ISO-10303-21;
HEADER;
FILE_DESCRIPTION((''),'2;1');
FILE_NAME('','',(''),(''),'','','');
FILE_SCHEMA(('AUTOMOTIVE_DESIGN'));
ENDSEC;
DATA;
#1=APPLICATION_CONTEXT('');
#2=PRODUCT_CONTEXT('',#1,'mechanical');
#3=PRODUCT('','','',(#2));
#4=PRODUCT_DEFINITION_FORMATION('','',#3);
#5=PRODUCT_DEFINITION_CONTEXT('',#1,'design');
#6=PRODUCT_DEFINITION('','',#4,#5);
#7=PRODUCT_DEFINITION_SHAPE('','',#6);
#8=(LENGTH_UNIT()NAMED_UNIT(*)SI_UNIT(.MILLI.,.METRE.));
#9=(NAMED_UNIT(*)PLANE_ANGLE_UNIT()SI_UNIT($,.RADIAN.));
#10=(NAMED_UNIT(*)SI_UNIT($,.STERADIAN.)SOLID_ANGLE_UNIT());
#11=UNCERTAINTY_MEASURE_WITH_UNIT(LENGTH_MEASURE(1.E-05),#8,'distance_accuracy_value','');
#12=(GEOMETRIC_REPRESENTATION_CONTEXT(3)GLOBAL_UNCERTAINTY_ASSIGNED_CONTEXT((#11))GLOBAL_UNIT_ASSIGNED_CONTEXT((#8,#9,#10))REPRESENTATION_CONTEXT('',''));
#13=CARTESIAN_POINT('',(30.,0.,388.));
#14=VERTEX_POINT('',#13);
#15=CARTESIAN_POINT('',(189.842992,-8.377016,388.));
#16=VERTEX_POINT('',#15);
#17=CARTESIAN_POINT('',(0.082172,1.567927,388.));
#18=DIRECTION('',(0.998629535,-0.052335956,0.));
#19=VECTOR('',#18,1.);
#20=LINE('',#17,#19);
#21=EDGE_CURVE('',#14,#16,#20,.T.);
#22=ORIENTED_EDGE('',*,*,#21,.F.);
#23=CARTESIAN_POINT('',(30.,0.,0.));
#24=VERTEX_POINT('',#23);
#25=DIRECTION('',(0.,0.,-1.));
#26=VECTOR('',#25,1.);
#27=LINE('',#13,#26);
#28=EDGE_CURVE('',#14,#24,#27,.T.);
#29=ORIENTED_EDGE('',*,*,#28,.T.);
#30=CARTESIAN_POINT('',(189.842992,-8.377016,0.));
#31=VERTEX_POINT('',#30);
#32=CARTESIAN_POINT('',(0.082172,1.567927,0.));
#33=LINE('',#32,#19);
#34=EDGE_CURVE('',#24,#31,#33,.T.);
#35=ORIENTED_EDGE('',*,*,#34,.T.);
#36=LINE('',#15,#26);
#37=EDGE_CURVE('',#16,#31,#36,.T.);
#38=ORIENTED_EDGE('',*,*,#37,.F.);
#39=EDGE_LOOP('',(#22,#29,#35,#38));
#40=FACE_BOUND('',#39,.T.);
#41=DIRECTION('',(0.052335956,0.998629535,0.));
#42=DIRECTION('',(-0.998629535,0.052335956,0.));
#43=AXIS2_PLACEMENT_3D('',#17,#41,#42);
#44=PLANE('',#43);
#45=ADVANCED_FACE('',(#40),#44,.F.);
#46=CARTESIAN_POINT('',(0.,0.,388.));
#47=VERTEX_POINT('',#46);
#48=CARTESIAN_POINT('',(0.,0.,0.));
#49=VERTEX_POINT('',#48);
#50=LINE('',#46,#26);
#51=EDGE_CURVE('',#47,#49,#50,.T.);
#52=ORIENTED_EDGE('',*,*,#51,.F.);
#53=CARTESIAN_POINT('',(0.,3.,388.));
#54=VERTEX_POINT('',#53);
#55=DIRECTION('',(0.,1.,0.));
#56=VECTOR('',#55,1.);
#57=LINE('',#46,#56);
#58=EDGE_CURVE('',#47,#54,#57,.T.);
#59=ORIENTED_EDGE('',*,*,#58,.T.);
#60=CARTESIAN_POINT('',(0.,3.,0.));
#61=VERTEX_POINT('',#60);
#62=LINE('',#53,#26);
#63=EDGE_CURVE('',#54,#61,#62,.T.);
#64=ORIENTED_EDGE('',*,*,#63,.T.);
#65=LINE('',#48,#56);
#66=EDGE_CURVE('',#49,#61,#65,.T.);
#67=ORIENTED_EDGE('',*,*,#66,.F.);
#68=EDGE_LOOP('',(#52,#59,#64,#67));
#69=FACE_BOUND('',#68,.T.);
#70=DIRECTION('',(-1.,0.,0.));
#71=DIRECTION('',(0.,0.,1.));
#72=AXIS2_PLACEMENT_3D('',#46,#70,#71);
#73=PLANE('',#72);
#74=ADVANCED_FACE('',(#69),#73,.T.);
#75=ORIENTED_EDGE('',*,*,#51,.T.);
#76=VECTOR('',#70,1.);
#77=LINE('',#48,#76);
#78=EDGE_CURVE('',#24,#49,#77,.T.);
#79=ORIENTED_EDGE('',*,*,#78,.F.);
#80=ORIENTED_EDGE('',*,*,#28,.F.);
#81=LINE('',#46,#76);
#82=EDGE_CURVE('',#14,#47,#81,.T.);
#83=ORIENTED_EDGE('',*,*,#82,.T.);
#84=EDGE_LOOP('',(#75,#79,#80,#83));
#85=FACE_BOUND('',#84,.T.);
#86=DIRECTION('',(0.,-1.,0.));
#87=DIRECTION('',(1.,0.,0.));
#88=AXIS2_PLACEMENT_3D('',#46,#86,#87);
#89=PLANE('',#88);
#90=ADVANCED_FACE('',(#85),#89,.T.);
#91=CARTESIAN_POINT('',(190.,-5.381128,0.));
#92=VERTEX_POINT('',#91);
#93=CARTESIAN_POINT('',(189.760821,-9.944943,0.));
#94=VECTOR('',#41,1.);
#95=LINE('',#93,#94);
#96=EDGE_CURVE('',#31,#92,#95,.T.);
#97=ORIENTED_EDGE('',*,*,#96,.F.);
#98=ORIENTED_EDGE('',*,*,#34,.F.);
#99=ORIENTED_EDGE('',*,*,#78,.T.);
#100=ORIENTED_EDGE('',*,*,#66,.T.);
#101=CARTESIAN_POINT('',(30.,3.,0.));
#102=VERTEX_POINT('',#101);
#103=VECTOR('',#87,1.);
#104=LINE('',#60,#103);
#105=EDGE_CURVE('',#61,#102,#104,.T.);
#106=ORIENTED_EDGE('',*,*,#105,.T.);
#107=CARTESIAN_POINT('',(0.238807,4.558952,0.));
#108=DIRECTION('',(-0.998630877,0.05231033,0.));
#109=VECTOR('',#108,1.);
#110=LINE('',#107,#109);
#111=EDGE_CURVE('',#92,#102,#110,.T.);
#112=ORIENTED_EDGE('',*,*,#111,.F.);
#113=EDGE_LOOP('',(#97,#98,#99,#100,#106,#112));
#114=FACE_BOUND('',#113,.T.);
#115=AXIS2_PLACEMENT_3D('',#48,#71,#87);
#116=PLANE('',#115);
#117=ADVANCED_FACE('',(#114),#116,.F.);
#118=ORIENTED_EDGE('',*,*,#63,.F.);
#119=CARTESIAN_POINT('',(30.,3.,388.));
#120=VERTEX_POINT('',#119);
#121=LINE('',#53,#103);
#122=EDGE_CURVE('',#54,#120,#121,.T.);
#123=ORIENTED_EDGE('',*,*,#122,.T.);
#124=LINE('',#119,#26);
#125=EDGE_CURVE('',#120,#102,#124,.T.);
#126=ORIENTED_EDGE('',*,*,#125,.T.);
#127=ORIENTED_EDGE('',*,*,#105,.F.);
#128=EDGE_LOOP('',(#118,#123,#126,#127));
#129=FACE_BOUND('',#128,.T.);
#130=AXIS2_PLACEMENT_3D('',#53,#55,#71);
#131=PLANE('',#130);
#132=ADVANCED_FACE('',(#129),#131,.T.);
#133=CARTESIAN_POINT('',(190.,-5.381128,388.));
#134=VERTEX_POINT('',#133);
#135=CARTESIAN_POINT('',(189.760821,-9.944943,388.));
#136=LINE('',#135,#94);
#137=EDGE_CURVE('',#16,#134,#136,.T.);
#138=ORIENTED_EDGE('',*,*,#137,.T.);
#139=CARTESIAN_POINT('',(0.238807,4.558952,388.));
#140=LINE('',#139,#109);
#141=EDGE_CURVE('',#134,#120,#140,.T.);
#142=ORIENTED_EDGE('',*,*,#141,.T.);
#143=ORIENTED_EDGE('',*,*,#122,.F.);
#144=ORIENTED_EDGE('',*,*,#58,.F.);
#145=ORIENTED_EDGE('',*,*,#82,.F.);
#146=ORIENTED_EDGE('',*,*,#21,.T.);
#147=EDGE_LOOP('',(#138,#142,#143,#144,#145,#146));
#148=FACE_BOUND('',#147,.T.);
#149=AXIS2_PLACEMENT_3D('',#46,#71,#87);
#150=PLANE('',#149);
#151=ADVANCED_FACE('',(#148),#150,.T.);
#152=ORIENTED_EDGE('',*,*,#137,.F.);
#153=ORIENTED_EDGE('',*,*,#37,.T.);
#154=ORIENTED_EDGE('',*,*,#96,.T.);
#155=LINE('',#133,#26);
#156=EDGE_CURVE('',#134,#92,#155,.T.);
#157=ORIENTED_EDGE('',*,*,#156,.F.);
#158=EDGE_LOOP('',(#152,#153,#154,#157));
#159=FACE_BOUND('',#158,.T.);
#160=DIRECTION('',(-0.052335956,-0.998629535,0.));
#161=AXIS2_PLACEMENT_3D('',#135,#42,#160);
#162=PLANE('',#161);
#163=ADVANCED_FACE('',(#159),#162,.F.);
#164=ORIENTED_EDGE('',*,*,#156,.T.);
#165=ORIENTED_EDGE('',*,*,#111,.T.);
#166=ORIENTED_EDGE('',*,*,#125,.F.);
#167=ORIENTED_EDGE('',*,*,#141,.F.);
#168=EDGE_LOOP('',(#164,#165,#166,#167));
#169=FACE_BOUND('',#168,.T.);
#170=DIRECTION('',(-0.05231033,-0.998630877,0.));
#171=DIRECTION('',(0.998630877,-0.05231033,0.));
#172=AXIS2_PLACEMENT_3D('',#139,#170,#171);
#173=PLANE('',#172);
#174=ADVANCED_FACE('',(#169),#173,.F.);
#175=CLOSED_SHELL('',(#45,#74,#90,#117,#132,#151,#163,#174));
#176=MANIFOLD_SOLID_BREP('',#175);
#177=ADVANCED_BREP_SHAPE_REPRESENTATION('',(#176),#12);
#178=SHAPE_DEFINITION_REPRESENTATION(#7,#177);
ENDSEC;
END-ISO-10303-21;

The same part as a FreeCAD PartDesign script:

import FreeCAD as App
import Part
import Sketcher
Q = App.Units.Quantity

doc = App.newDocument("Part")
body = doc.addObject("PartDesign::Body", "Body")

# Sketch on XY plane
sketch1 = body.newObject("Sketcher::SketchObject", "Sketch")
sketch1.AttachmentSupport = (doc.getObject("XY_Plane"), [""])
sketch1.MapMode = "FlatFace"
sketch1.addGeometry([
    Part.LineSegment(App.Vector(0, 3, 0), App.Vector(0, 0, 0)),  # 0
    Part.LineSegment(App.Vector(0, 0, 0), App.Vector(30, 0, 0)),  # 1
    Part.LineSegment(App.Vector(30, 0, 0), App.Vector(189.842992, -8.377016, 0)),  # 2
    Part.LineSegment(App.Vector(189.842992, -8.377016, 0), App.Vector(190, -5.381128, 0)),  # 3
    Part.LineSegment(App.Vector(190, -5.381128, 0), App.Vector(30, 3, 0)),  # 4
    Part.LineSegment(App.Vector(30, 3, 0), App.Vector(0, 3, 0)),  # 5
], False)
sketch1.addConstraint([
    Sketcher.Constraint("Coincident", 0, 2, 1, 1),
    Sketcher.Constraint("Coincident", 1, 2, 2, 1),
    Sketcher.Constraint("Coincident", 2, 2, 3, 1),
    Sketcher.Constraint("Coincident", 3, 2, 4, 1),
    Sketcher.Constraint("Coincident", 4, 2, 5, 1),
    Sketcher.Constraint("Coincident", 5, 2, 0, 1),
    Sketcher.Constraint("Vertical", 0),
    Sketcher.Constraint("Horizontal", 1),
    Sketcher.Constraint("Horizontal", 5),
    Sketcher.Constraint("Coincident", 0, 2, -1, 1),
    Sketcher.Constraint("Perpendicular", 2, 3),
    Sketcher.Constraint("Vertical", 1, 2, 4, 2),
    Sketcher.Constraint("DistanceX", 1, 1, 1, 2, Q("30 mm")),
    Sketcher.Constraint("DistanceY", 0, 2, 0, 1, Q("3 mm")),
    Sketcher.Constraint("Angle", 2, Q("-3 deg")),
    Sketcher.Constraint("Distance", 3, Q("3 mm")),
    Sketcher.Constraint("DistanceX", -1, 1, 3, 2, Q("190 mm")),
])
pad1 = body.newObject("PartDesign::Pad", "Pad")
pad1.Profile = sketch1
pad1.Length = 388

doc.recompute()
